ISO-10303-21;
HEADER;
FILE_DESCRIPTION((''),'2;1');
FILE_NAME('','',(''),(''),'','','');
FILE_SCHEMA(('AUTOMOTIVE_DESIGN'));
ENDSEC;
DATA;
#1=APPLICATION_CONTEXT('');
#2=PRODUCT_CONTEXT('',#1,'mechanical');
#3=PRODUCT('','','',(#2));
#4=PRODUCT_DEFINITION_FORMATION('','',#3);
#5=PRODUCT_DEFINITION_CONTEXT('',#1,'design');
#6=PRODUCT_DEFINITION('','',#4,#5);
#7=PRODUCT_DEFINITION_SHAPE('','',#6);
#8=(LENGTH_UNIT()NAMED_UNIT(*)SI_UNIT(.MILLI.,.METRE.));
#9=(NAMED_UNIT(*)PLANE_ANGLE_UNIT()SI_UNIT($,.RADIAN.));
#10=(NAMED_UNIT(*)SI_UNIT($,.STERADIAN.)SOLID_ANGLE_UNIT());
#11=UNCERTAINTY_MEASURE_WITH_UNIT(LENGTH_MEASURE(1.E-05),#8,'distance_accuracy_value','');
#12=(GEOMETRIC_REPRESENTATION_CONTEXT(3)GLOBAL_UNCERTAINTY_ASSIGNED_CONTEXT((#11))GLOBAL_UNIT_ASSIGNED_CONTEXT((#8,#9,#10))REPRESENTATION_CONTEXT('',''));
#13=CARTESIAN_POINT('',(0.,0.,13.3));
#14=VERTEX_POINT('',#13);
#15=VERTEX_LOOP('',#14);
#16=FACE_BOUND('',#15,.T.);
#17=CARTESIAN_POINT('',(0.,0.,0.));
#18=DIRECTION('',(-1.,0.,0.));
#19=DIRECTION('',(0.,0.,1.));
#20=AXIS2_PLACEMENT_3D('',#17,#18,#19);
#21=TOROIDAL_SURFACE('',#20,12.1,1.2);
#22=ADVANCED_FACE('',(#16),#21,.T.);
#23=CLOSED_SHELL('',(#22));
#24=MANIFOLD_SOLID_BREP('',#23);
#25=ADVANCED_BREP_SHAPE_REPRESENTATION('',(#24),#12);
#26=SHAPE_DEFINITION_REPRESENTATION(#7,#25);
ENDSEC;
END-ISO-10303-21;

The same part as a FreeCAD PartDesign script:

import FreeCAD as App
import Part
import Sketcher
from FreeCAD import Vector

doc = App.newDocument("Part")
body = doc.addObject("PartDesign::Body", "Body")

# Sketch on XY plane
sketch1 = body.newObject("Sketcher::SketchObject", "Sketch")
sketch1.AttachmentSupport = (doc.getObject("XY_Plane"), [""])
sketch1.MapMode = "FlatFace"
sketch1.addGeometry(Part.Circle(Vector(0, 12.1, 0), Vector(0, 0, 1), 1.2), False)
sketch1.addConstraint([
    Sketcher.Constraint("PointOnObject", 0, 3, -2),
    Sketcher.Constraint("Diameter", 0, 2.4),
    Sketcher.Constraint("DistanceY", -1, 1, 0, 3, 12.1),
])
revolution = body.newObject("PartDesign::Revolution", "Revolution")
revolution.Profile = sketch1
revolution.ReferenceAxis = (sketch1, ["H_Axis"])
revolution.Angle = 360

doc.recompute()
